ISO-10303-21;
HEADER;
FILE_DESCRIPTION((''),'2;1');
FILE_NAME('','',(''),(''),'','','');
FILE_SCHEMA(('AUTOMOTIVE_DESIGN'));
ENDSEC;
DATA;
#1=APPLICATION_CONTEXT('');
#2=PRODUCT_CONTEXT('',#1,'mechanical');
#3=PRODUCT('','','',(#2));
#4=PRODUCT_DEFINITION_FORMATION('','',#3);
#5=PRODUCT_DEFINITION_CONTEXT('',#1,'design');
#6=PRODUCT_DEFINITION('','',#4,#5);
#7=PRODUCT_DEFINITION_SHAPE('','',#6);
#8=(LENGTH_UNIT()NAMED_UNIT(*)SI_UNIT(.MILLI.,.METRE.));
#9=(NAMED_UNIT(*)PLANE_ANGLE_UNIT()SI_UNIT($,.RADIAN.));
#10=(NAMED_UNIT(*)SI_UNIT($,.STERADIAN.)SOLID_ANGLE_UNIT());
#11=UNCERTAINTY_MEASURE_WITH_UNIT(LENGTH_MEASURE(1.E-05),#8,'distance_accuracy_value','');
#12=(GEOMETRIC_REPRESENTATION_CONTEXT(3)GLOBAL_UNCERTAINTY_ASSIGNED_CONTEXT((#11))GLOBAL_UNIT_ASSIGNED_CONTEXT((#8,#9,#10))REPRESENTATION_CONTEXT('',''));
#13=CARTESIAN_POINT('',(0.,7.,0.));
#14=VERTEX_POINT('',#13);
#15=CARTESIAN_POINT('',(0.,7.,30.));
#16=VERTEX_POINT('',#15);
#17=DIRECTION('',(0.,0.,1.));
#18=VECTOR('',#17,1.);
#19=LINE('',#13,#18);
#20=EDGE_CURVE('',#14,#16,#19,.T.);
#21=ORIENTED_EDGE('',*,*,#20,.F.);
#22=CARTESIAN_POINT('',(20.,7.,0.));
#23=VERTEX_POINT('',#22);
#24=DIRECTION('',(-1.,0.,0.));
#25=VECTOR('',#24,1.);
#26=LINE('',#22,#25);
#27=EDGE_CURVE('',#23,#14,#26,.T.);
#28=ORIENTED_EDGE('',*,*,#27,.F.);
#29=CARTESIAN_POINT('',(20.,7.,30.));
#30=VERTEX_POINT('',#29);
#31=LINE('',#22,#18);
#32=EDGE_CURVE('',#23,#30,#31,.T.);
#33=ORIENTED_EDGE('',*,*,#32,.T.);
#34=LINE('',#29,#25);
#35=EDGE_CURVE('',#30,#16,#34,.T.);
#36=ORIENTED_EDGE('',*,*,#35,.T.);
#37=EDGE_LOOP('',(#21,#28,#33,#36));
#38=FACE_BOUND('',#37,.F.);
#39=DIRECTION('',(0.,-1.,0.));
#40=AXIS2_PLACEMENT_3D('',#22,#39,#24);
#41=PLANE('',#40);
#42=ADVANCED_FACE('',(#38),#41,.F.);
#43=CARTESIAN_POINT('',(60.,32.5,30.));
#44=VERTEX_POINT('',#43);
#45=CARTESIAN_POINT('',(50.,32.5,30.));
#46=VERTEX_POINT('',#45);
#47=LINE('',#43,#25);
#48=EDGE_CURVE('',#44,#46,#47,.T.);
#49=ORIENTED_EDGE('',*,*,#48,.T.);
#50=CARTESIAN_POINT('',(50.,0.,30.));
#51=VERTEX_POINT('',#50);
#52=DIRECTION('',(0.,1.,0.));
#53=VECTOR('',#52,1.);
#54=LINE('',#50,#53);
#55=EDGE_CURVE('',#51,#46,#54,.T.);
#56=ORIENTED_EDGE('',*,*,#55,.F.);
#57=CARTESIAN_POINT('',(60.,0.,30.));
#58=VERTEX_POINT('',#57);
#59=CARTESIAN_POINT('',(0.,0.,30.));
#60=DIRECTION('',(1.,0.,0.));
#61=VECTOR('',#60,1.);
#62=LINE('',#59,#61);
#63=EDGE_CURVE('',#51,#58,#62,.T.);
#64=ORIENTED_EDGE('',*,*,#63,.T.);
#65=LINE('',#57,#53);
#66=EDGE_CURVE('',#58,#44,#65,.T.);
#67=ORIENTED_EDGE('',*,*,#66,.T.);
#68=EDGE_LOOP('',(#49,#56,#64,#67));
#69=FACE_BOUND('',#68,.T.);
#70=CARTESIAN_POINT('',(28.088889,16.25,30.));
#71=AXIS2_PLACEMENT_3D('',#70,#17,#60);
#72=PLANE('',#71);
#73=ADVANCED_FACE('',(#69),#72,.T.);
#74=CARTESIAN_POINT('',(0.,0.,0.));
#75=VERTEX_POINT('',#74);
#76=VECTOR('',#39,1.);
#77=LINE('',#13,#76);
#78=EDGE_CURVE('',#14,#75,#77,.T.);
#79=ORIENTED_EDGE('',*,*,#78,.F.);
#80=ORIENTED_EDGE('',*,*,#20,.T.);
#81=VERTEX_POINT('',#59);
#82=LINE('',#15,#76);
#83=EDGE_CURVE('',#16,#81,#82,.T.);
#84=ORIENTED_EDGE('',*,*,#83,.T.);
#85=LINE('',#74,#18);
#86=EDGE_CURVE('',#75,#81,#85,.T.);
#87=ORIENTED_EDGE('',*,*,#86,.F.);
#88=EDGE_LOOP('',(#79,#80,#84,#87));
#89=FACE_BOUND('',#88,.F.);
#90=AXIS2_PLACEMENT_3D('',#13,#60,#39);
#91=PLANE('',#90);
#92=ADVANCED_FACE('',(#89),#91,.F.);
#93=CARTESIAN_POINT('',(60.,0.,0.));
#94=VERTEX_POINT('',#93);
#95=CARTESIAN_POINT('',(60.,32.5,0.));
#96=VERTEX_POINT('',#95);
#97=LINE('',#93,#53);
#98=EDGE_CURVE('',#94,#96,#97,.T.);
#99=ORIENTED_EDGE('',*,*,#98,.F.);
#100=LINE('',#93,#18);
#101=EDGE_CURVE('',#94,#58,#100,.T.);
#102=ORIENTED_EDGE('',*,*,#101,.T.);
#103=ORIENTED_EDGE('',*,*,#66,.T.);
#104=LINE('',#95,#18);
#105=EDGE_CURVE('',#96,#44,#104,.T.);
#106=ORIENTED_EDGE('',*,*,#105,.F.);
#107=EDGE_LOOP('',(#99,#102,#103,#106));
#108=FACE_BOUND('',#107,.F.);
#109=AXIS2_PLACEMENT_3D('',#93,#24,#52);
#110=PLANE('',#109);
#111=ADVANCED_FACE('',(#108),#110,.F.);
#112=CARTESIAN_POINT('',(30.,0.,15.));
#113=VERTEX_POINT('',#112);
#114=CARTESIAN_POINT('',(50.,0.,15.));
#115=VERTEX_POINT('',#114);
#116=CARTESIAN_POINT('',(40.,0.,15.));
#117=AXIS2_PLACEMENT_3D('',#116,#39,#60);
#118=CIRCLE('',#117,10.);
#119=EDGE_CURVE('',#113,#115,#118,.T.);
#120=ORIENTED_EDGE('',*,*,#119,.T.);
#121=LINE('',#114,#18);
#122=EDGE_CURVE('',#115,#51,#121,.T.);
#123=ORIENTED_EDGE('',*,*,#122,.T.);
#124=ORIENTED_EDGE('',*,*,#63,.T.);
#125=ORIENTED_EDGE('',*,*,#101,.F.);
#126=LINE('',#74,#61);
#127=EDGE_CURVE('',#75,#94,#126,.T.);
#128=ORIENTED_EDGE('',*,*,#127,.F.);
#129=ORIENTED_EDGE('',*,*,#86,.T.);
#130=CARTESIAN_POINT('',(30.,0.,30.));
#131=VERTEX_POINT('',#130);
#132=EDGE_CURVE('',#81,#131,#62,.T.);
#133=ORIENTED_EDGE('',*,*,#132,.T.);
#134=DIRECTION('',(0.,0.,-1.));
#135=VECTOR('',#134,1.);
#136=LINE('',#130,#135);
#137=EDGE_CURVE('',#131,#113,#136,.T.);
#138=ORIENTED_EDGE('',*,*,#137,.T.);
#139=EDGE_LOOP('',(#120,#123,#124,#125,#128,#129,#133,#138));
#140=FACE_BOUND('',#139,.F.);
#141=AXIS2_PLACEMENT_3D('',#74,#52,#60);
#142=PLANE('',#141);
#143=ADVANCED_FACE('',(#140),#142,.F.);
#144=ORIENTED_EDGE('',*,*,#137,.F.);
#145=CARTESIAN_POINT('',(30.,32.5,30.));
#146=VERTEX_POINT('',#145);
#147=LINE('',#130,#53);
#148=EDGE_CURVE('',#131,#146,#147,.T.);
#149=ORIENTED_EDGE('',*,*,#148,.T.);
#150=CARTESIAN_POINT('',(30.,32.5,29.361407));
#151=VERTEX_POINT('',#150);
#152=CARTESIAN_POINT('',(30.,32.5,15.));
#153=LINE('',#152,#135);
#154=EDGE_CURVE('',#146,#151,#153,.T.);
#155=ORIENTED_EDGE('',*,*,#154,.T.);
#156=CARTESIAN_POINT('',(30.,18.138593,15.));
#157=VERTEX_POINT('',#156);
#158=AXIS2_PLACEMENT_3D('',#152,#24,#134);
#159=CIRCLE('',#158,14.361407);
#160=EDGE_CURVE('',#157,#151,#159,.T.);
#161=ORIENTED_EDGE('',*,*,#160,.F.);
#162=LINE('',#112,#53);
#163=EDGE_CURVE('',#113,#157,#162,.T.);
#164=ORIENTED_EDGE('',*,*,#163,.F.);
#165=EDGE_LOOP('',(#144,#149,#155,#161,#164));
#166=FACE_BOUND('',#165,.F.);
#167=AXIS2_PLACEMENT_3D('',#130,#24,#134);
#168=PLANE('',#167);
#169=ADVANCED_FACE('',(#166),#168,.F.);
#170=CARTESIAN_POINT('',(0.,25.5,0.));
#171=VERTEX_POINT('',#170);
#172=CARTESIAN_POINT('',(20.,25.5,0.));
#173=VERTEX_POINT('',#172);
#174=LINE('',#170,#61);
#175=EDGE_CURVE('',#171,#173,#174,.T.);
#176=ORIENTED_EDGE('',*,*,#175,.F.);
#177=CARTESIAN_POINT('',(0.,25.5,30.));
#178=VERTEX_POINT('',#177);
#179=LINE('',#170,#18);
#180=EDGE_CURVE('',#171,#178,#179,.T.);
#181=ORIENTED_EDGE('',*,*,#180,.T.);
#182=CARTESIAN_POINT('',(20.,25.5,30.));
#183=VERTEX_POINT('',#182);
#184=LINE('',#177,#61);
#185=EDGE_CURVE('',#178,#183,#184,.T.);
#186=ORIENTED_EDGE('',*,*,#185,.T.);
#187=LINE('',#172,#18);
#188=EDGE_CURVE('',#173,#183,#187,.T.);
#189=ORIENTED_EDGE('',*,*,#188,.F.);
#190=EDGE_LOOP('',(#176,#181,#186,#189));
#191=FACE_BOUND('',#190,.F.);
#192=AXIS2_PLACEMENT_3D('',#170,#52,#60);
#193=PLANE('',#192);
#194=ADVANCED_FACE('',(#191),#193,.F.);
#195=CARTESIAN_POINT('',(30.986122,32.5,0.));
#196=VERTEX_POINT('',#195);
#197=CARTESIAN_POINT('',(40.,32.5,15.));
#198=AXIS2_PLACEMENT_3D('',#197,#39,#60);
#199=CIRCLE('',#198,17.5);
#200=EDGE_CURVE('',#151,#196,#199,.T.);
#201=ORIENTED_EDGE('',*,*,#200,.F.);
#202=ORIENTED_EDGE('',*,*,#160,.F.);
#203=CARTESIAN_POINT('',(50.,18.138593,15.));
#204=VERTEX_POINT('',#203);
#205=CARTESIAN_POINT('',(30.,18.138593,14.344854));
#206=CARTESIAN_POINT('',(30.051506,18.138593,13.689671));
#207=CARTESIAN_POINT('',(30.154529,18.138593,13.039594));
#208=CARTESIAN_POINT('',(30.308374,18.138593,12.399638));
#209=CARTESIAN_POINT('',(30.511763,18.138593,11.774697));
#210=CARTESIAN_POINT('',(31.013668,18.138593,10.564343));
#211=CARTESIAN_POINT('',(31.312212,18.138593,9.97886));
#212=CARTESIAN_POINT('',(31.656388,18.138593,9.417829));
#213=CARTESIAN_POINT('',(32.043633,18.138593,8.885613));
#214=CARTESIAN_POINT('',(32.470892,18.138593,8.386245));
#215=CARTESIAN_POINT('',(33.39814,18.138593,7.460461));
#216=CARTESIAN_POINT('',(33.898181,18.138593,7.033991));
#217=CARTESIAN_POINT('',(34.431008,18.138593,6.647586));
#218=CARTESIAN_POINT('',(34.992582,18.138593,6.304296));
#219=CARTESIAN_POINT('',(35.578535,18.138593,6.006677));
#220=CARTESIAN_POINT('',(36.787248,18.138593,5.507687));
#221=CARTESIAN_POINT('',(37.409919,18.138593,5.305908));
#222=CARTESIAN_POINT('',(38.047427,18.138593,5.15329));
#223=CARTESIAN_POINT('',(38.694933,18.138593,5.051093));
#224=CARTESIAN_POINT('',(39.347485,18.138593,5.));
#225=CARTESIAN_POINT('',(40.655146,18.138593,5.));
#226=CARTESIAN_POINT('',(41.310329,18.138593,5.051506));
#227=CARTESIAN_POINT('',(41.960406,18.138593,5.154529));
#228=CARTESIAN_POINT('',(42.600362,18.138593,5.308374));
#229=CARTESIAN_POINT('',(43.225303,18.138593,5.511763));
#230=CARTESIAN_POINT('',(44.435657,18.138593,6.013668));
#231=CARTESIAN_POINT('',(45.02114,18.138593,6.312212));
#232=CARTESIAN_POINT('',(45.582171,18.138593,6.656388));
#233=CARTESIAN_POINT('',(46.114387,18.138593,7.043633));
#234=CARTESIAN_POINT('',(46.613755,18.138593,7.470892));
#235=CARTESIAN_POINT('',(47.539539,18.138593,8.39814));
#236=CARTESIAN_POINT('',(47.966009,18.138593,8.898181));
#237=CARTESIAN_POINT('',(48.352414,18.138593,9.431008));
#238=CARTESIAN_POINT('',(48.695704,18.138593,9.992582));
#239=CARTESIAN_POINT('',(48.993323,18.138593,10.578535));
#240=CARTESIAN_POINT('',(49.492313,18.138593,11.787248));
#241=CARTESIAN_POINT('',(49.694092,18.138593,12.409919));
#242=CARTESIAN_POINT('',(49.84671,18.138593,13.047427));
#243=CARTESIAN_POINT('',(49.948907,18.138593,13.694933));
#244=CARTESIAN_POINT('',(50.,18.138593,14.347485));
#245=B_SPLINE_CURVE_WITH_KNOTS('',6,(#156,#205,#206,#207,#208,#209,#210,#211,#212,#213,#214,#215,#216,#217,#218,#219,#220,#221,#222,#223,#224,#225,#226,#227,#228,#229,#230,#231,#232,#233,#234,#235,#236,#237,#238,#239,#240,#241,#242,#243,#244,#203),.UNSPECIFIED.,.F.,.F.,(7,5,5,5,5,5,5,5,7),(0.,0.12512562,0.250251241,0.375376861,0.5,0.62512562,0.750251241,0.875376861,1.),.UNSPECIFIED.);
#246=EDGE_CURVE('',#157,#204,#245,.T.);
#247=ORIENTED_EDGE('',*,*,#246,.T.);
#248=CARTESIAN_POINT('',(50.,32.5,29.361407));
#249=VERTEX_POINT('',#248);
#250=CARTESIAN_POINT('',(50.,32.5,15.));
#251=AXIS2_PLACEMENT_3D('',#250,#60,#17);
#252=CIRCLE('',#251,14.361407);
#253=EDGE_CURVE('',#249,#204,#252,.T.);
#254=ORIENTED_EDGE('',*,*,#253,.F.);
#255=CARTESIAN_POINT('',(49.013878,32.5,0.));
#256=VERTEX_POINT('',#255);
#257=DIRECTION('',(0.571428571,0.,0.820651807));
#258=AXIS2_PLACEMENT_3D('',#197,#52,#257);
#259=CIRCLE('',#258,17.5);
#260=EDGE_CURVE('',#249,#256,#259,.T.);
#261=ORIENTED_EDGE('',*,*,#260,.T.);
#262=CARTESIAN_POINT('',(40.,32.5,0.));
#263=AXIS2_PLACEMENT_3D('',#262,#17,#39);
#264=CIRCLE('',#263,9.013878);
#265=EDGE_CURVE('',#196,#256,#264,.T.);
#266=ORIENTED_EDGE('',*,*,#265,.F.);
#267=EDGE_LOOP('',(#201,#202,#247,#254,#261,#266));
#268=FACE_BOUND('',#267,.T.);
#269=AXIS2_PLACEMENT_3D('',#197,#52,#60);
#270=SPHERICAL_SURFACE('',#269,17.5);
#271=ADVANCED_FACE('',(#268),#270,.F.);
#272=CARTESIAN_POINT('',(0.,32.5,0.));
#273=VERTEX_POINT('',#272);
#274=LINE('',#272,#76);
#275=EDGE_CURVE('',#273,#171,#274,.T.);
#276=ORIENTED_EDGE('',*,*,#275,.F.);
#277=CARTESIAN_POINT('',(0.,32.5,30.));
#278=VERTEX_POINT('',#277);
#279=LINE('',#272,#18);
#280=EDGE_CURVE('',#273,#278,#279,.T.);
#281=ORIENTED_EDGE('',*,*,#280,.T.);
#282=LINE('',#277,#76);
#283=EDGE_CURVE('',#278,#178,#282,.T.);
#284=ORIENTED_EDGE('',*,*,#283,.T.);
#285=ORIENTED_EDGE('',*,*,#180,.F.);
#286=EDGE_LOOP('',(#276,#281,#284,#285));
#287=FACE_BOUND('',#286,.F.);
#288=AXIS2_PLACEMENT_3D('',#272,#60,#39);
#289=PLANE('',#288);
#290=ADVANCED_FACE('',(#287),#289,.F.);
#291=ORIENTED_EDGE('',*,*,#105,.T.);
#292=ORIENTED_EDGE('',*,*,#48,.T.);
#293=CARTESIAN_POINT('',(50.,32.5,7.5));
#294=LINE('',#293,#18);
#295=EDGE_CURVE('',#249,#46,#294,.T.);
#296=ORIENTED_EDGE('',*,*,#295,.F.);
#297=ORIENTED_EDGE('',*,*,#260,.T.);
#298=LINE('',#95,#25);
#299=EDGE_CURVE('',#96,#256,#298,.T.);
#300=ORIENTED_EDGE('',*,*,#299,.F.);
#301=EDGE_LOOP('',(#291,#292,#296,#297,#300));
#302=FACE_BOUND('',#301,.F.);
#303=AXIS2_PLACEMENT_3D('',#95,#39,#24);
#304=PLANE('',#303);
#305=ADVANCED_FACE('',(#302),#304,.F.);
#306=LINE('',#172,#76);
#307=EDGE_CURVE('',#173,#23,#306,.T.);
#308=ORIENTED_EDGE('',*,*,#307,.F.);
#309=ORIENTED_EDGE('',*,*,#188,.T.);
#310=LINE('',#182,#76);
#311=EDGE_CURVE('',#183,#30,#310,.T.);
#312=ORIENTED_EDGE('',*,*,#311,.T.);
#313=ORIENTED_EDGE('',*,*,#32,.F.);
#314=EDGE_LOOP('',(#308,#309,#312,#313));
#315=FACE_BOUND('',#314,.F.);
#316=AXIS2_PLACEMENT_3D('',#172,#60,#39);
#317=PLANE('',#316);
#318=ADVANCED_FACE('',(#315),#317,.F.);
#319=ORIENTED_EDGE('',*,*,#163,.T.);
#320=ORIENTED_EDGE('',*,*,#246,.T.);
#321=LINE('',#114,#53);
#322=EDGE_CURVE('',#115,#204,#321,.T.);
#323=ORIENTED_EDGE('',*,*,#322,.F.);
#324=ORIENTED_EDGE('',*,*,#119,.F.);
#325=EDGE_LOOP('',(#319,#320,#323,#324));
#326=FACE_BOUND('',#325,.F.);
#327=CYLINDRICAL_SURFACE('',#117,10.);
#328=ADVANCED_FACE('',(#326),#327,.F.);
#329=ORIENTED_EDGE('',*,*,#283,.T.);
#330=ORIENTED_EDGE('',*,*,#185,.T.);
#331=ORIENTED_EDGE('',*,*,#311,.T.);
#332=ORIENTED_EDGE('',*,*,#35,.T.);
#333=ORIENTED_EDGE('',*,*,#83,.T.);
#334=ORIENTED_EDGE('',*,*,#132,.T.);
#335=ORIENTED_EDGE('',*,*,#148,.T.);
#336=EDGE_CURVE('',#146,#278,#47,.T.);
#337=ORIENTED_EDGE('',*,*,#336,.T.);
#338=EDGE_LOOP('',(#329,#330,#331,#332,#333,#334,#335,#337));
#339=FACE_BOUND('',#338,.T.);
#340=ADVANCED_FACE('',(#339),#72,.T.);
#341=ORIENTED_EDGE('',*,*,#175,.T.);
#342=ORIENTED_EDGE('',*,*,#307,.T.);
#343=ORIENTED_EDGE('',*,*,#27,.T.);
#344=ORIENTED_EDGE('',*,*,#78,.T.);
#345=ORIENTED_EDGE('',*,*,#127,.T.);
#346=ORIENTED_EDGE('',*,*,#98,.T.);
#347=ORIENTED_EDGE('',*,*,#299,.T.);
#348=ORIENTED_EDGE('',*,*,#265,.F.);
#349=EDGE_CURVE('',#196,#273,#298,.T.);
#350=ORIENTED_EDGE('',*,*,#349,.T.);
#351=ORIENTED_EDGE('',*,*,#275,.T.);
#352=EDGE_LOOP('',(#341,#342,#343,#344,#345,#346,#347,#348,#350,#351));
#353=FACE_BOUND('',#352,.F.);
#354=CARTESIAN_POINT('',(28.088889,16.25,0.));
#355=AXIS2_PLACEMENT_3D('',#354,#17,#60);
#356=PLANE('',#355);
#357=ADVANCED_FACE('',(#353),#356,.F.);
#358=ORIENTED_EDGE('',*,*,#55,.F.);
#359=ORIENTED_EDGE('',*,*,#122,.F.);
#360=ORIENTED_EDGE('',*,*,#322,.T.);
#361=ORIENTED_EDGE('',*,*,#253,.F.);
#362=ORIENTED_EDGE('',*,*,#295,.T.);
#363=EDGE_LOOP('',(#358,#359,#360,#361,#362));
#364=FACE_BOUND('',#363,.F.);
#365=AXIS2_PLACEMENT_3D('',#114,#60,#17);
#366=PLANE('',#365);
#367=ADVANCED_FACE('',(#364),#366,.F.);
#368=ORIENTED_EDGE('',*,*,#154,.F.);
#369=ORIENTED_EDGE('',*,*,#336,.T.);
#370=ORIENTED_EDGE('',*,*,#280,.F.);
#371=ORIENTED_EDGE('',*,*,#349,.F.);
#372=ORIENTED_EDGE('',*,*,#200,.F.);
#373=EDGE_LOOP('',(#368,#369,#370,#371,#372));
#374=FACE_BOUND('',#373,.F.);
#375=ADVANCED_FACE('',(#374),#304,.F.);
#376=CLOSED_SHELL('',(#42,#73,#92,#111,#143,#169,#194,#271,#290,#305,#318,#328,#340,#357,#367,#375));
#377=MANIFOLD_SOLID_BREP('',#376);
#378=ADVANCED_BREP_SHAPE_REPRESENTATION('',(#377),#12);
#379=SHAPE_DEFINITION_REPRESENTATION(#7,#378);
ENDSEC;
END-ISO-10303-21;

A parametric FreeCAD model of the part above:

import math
import FreeCAD as App
import Part
import Sketcher
from FreeCAD import Vector
Q = App.Units.Quantity

doc = App.newDocument("Part")
body = doc.addObject("PartDesign::Body", "Body")

# Sketch on XY plane
sketch1 = body.newObject("Sketcher::SketchObject", "Sketch")
sketch1.AttachmentSupport = (doc.getObject("XY_Plane"), [""])
sketch1.MapMode = "FlatFace"
sketch1.addGeometry([
    Part.LineSegment(Vector(0, 7, 0), Vector(0, 0, 0)),  # 0
    Part.LineSegment(Vector(0, 0, 0), Vector(60, 0, 0)),  # 1
    Part.LineSegment(Vector(60, 0, 0), Vector(60, 32.5, 0)),  # 2
    Part.LineSegment(Vector(60, 32.5, 0), Vector(0, 32.5, 0)),  # 3
    Part.LineSegment(Vector(0, 32.5, 0), Vector(0, 25.5, 0)),  # 4
    Part.LineSegment(Vector(0, 25.5, 0), Vector(20, 25.5, 0)),  # 5
    Part.LineSegment(Vector(20, 25.5, 0), Vector(20, 7, 0)),  # 6
    Part.LineSegment(Vector(20, 7, 0), Vector(0, 7, 0)),  # 7
], False)
sketch1.addConstraint([
    Sketcher.Constraint("Coincident", 0, 2, 1, 1),
    Sketcher.Constraint("Coincident", 1, 2, 2, 1),
    Sketcher.Constraint("Coincident", 2, 2, 3, 1),
    Sketcher.Constraint("Coincident", 3, 2, 4, 1),
    Sketcher.Constraint("Coincident", 4, 2, 5, 1),
    Sketcher.Constraint("Coincident", 5, 2, 6, 1),
    Sketcher.Constraint("Coincident", 6, 2, 7, 1),
    Sketcher.Constraint("Coincident", 7, 2, 0, 1),
    Sketcher.Constraint("Vertical", 0),
    Sketcher.Constraint("Horizontal", 1),
    Sketcher.Constraint("Vertical", 2),
    Sketcher.Constraint("Horizontal", 3),
    Sketcher.Constraint("Vertical", 4),
    Sketcher.Constraint("Horizontal", 5),
    Sketcher.Constraint("Vertical", 6),
    Sketcher.Constraint("Horizontal", 7),
    Sketcher.Constraint("Coincident", 0, 2, -1, 1),
    Sketcher.Constraint("PointOnObject", 3, 2, -2),
    Sketcher.Constraint("Equal", 0, 4),
    Sketcher.Constraint("DistanceX", 1, 1, 1, 2, Q("60 mm")),
    Sketcher.Constraint("DistanceX", 5, 1, 5, 2, Q("20 mm")),
    Sketcher.Constraint("DistanceY", 0, 2, 0, 1, Q("7 mm")),
    Sketcher.Constraint("DistanceY", 2, 1, 2, 2, Q("32.5 mm")),
])
pad1 = body.newObject("PartDesign::Pad", "Pad")
pad1.Profile = sketch1
pad1.Length = 30

# Sketch on XZ plane
sketch2 = body.newObject("Sketcher::SketchObject", "Sketch001")
sketch2.AttachmentSupport = (doc.getObject("XZ_Plane"), [""])
sketch2.MapMode = "FlatFace"
sketch2.addGeometry([
    Part.ArcOfCircle(Part.Circle(Vector(40, 15, 0), Vector(0, 0, 1), 10), math.radians(180), math.radians(360)),
    Part.LineSegment(Vector(50, 15, 0), Vector(50, 30, 0)),
    Part.LineSegment(Vector(50, 30, 0), Vector(30, 30, 0)),
    Part.LineSegment(Vector(30, 30, 0), Vector(30, 15, 0)),
], False)
sketch2.addConstraint([
    Sketcher.Constraint("Tangent", 0, 2, 1, 1),
    Sketcher.Constraint("Coincident", 1, 2, 2, 1),
    Sketcher.Constraint("Coincident", 2, 2, 3, 1),
    Sketcher.Constraint("Tangent", 3, 2, 0, 1),
    Sketcher.Constraint("Vertical", 1),
    Sketcher.Constraint("Horizontal", 2),
    Sketcher.Constraint("Vertical", 3),
    Sketcher.Constraint("Radius", 0, Q("10 mm")),
    Sketcher.Constraint("DistanceY", 1, 1, 1, 2, Q("15 mm")),
    Sketcher.Constraint("DistanceX", -1, 1, 0, 3, Q("40 mm")),
    Sketcher.Constraint("DistanceY", -1, 1, 0, 3, Q("15 mm")),
])
pocket1 = body.newObject("PartDesign::Pocket", "Pocket")
pocket1.Profile = sketch2
pocket1.Type = "ThroughAll"

# Sketch on XY plane
sketch3 = body.newObject("Sketcher::SketchObject", "Sketch002")
sketch3.AttachmentSupport = (doc.getObject("XY_Plane"), [""])
sketch3.MapMode = "FlatFace"
sketch3.AttachmentOffset = App.Placement(Vector(0, 0, 15), App.Rotation())
sketch3.addGeometry([
    Part.ArcOfCircle(Part.Circle(Vector(40, 32.5, 0), Vector(0, 0, 1), 17.5), math.radians(-90), math.radians(0)),
    Part.LineSegment(Vector(57.5, 32.5, 0), Vector(40, 32.5, 0)),
    Part.LineSegment(Vector(40, 32.5, 0), Vector(40, 15, 0)),
], False)
sketch3.addGeometry(Part.LineSegment(Vector(40, 32.5, 0), Vector(40, 15, 0)), True)  # axis
sketch3.addConstraint([
    Sketcher.Constraint("Coincident", 0, 2, 1, 1),
    Sketcher.Constraint("Coincident", 1, 2, 2, 1),
    Sketcher.Constraint("Coincident", 2, 2, 0, 1),
    Sketcher.Constraint("Horizontal", 1),
    Sketcher.Constraint("Vertical", 2),
    Sketcher.Constraint("Vertical", 3),
    Sketcher.Constraint("Coincident", 1, 2, 0, 3),
    Sketcher.Constraint("Coincident", 3, 1, 0, 3),
    Sketcher.Constraint("Equal", 2, 3),
    Sketcher.Constraint("Radius", 0, Q("17.5 mm")),
    Sketcher.Constraint("DistanceX", -1, 1, 0, 3, Q("40 mm")),
    Sketcher.Constraint("DistanceY", -1, 1, 2, 2, Q("15 mm")),
])
groove = body.newObject("PartDesign::Groove", "Groove")
groove.Profile = sketch3
groove.ReferenceAxis = (sketch3, ["Axis0"])
groove.Angle = 360

doc.recompute()
